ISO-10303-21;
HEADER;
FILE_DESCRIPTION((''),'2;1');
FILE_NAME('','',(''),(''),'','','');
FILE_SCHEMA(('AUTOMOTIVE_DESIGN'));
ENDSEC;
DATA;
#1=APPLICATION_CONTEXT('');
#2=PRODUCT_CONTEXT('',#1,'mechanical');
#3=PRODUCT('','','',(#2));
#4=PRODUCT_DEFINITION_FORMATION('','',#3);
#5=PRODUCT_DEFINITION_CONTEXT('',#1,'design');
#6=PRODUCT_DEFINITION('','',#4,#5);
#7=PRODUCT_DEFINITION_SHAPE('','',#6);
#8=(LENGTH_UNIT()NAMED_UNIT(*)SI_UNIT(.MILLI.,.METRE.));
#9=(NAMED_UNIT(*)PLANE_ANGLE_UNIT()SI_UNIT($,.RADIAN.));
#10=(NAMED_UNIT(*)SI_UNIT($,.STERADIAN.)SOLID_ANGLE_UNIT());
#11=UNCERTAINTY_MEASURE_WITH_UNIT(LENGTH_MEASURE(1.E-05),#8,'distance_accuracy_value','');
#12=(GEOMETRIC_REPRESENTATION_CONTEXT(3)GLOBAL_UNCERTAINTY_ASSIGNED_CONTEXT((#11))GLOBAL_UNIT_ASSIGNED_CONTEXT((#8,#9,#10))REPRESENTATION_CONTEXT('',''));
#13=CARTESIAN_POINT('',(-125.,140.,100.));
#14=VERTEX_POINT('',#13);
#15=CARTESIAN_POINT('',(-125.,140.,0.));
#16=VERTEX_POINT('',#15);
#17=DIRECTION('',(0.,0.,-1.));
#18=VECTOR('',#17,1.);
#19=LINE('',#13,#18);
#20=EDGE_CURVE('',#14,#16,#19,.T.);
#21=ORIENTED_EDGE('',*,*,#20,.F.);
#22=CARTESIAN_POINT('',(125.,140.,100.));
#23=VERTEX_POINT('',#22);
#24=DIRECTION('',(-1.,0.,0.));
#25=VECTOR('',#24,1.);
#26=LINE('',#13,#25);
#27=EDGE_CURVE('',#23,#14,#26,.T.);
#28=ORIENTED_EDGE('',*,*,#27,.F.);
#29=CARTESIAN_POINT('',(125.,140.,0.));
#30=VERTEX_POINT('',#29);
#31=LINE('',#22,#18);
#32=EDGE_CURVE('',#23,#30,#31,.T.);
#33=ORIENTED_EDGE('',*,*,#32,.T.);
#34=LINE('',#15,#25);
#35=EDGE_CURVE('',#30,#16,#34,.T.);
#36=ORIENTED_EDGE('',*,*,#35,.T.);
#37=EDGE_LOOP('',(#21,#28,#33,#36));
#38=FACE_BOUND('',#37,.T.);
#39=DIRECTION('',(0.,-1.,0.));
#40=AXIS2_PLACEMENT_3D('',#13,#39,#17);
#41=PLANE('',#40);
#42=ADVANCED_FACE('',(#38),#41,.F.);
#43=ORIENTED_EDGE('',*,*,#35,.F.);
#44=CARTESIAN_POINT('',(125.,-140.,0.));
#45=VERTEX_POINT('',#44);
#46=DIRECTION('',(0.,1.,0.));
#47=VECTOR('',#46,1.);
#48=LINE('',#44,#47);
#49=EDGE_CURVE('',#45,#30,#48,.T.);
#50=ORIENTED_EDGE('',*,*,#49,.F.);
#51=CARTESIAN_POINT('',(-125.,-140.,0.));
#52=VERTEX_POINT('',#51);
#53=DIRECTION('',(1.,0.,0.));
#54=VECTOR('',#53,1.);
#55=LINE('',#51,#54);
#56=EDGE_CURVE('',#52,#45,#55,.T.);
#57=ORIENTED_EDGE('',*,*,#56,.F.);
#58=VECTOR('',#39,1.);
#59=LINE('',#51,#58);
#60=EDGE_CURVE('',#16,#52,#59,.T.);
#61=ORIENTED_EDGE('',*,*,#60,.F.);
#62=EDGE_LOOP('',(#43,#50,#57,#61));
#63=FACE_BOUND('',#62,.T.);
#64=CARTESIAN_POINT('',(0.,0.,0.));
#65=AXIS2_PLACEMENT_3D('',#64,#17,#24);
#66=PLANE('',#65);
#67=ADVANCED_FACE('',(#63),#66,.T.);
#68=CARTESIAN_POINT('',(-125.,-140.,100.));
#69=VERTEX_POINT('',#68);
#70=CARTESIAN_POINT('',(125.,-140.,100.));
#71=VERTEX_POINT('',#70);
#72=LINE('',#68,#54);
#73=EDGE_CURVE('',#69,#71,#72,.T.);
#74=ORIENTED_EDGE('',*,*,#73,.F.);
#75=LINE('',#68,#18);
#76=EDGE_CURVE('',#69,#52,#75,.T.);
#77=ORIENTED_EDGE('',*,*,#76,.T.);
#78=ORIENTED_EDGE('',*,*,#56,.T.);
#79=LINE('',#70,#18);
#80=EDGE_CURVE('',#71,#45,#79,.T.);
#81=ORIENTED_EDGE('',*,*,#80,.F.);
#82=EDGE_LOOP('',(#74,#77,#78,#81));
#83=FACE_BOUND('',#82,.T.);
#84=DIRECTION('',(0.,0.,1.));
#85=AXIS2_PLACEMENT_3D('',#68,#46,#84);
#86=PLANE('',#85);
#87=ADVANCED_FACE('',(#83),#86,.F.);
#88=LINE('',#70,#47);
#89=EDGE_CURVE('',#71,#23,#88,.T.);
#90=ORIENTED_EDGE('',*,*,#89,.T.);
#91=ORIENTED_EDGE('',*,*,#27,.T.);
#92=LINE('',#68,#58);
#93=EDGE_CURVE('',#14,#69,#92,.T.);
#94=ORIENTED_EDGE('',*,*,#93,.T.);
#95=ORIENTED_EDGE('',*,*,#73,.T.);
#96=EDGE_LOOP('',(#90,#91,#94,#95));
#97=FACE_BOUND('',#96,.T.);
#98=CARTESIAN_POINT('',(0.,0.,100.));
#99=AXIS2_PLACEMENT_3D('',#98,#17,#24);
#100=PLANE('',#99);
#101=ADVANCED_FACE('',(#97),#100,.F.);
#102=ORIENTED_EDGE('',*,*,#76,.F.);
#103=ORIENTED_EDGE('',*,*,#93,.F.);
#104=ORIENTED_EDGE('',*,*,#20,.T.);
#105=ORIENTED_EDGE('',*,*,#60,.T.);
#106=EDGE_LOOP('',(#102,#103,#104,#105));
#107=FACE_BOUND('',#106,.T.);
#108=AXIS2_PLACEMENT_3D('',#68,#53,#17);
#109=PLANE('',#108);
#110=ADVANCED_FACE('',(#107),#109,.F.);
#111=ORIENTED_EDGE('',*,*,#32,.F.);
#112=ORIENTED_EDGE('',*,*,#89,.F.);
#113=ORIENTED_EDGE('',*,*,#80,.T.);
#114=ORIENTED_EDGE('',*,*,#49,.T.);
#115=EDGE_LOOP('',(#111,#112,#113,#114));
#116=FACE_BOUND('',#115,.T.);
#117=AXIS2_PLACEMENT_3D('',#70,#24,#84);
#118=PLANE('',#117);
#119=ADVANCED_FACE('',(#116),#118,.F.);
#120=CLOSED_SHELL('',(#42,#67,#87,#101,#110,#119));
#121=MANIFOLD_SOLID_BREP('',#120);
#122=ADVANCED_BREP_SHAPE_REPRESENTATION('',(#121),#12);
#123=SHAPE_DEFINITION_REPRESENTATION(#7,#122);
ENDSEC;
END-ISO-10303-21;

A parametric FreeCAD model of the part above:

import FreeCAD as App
import Part
import Sketcher
from FreeCAD import Vector

doc = App.newDocument("Part")
body = doc.addObject("PartDesign::Body", "Body")

# Sketch on XY plane
sketch1 = body.newObject("Sketcher::SketchObject", "Sketch")
sketch1.AttachmentSupport = (doc.getObject("XY_Plane"), [""])
sketch1.MapMode = "FlatFace"
sketch1.addGeometry([
    Part.LineSegment(Vector(-125, 140, 0), Vector(-125, -140, 0)),
    Part.LineSegment(Vector(-125, -140, 0), Vector(125, -140, 0)),
    Part.LineSegment(Vector(125, -140, 0), Vector(125, 140, 0)),
    Part.LineSegment(Vector(125, 140, 0), Vector(-125, 140, 0)),
], False)
sketch1.addConstraint([
    Sketcher.Constraint("Coincident", 0, 2, 1, 1),
    Sketcher.Constraint("Coincident", 1, 2, 2, 1),
    Sketcher.Constraint("Coincident", 2, 2, 3, 1),
    Sketcher.Constraint("Coincident", 3, 2, 0, 1),
    Sketcher.Constraint("Vertical", 0),
    Sketcher.Constraint("Horizontal", 1),
    Sketcher.Constraint("Vertical", 2),
    Sketcher.Constraint("Horizontal", 3),
    Sketcher.Constraint("Symmetric", 0, 2, 2, 2, -1, 1),
    Sketcher.Constraint("DistanceX", 1, 1, 1, 2, 250.0),
    Sketcher.Constraint("DistanceY", 0, 2, 0, 1, 280.0),
])
pad1 = body.newObject("PartDesign::Pad", "Pad")
pad1.Profile = sketch1
pad1.Length = 100

doc.recompute()
